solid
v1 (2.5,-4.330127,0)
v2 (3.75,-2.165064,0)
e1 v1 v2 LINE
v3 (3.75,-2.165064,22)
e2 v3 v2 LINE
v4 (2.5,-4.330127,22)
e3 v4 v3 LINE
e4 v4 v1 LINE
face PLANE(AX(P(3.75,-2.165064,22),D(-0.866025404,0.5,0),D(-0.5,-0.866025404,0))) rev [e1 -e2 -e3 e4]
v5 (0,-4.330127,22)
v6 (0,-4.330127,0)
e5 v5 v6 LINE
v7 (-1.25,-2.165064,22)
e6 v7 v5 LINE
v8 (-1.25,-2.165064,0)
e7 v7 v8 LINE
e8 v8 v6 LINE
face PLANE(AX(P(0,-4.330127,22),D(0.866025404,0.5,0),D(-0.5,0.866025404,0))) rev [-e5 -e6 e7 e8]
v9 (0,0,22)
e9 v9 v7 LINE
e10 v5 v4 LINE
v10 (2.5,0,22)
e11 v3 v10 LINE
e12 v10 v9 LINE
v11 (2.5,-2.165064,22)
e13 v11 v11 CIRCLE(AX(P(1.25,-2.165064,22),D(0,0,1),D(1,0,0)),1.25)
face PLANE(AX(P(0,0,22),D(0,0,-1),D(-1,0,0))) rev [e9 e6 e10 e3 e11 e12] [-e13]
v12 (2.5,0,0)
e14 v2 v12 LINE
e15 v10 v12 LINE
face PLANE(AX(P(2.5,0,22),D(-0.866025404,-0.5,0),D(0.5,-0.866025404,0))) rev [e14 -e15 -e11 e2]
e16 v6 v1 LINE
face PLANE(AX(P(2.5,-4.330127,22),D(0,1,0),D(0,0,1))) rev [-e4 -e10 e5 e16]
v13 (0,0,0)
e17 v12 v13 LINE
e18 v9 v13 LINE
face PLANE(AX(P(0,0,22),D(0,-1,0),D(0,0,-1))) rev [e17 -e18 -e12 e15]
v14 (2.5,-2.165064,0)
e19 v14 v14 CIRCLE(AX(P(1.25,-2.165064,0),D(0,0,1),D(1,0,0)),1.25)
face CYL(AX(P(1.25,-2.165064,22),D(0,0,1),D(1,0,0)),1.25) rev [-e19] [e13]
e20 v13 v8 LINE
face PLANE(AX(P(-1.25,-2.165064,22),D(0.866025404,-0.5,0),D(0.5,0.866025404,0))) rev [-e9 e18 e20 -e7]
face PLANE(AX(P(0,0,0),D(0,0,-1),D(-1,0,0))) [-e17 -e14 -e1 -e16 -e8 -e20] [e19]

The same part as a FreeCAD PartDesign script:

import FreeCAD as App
import Part
import Sketcher
Q = App.Units.Quantity

doc = App.newDocument("Part")
body = doc.addObject("PartDesign::Body", "Body")

sketch1 = body.newObject("Sketcher::SketchObject", "Sketch")
sketch1.AttachmentSupport = (doc.getObject("XY_Plane"), [""])
sketch1.MapMode = "FlatFace"
sketch1.addGeometry([
    Part.LineSegment(App.Vector(2.5, 0, 0), App.Vector(0, 0, 0)),
    Part.LineSegment(App.Vector(0, 0, 0), App.Vector(-1.2, -2.2, 0)),
    Part.LineSegment(App.Vector(-1.2, -2.2, 0), App.Vector(0, -4.3, 0)),
    Part.LineSegment(App.Vector(0, -4.3, 0), App.Vector(2.5, -4.3, 0)),
    Part.LineSegment(App.Vector(2.5, -4.3, 0), App.Vector(3.8, -2.2, 0)),
    Part.LineSegment(App.Vector(3.8, -2.2, 0), App.Vector(2.5, 0, 0)),
], False)
sketch1.addConstraint([
    Sketcher.Constraint("Coincident", 0, 2, 1, 1),
    Sketcher.Constraint("Coincident", 1, 2, 2, 1),
    Sketcher.Constraint("Coincident", 2, 2, 3, 1),
    Sketcher.Constraint("Coincident", 3, 2, 4, 1),
    Sketcher.Constraint("Coincident", 4, 2, 5, 1),
    Sketcher.Constraint("Coincident", 5, 2, 0, 1),
    Sketcher.Constraint("Horizontal", 0),
    Sketcher.Constraint("Horizontal", 3),
    Sketcher.Constraint("Coincident", 0, 2, -1, 1),
    Sketcher.Constraint("PointOnObject", 2, 2, -2),
    Sketcher.Constraint("Parallel", 1, 4),
    Sketcher.Constraint("Parallel", 2, 5),
    Sketcher.Constraint("Horizontal", 1, 2, 4, 2),
    Sketcher.Constraint("Vertical", 3, 2, 5, 2),
    Sketcher.Constraint("Angle", 1, Q("-120 deg")),
    Sketcher.Constraint("DistanceX", 0, 2, 0, 1, 2.5),
    Sketcher.Constraint("DistanceX", 1, 2, 4, 2, 5.0),
])
pad1 = body.newObject("PartDesign::Pad", "Pad")
pad1.Profile = sketch1
pad1.Length = 22

sketch2 = body.newObject("Sketcher::SketchObject", "Sketch001")
sketch2.AttachmentSupport = (doc.getObject("XY_Plane"), [""])
sketch2.MapMode = "FlatFace"
sketch2.AttachmentOffset = App.Placement(App.Vector(0, 0, 22), App.Rotation())
sketch2.addGeometry(Part.Circle(App.Vector(1.2, -2.2, 0), App.Vector(0, 0, 1), 1.2), False)
sketch2.addConstraint([
    Sketcher.Constraint("Diameter", 0, 2.5),
    Sketcher.Constraint("DistanceX", -1, 1, 0, 3, 1.25),
    Sketcher.Constraint("DistanceY", 0, 3, -1, 1, 2.165064),
])
doc.recompute()
hole = body.newObject("PartDesign::Hole", "Hole")
hole.Profile = sketch2
hole.ThreadType = "None"
hole.Diameter = 2.5
hole.DepthType = "ThroughAll"

doc.recompute()
